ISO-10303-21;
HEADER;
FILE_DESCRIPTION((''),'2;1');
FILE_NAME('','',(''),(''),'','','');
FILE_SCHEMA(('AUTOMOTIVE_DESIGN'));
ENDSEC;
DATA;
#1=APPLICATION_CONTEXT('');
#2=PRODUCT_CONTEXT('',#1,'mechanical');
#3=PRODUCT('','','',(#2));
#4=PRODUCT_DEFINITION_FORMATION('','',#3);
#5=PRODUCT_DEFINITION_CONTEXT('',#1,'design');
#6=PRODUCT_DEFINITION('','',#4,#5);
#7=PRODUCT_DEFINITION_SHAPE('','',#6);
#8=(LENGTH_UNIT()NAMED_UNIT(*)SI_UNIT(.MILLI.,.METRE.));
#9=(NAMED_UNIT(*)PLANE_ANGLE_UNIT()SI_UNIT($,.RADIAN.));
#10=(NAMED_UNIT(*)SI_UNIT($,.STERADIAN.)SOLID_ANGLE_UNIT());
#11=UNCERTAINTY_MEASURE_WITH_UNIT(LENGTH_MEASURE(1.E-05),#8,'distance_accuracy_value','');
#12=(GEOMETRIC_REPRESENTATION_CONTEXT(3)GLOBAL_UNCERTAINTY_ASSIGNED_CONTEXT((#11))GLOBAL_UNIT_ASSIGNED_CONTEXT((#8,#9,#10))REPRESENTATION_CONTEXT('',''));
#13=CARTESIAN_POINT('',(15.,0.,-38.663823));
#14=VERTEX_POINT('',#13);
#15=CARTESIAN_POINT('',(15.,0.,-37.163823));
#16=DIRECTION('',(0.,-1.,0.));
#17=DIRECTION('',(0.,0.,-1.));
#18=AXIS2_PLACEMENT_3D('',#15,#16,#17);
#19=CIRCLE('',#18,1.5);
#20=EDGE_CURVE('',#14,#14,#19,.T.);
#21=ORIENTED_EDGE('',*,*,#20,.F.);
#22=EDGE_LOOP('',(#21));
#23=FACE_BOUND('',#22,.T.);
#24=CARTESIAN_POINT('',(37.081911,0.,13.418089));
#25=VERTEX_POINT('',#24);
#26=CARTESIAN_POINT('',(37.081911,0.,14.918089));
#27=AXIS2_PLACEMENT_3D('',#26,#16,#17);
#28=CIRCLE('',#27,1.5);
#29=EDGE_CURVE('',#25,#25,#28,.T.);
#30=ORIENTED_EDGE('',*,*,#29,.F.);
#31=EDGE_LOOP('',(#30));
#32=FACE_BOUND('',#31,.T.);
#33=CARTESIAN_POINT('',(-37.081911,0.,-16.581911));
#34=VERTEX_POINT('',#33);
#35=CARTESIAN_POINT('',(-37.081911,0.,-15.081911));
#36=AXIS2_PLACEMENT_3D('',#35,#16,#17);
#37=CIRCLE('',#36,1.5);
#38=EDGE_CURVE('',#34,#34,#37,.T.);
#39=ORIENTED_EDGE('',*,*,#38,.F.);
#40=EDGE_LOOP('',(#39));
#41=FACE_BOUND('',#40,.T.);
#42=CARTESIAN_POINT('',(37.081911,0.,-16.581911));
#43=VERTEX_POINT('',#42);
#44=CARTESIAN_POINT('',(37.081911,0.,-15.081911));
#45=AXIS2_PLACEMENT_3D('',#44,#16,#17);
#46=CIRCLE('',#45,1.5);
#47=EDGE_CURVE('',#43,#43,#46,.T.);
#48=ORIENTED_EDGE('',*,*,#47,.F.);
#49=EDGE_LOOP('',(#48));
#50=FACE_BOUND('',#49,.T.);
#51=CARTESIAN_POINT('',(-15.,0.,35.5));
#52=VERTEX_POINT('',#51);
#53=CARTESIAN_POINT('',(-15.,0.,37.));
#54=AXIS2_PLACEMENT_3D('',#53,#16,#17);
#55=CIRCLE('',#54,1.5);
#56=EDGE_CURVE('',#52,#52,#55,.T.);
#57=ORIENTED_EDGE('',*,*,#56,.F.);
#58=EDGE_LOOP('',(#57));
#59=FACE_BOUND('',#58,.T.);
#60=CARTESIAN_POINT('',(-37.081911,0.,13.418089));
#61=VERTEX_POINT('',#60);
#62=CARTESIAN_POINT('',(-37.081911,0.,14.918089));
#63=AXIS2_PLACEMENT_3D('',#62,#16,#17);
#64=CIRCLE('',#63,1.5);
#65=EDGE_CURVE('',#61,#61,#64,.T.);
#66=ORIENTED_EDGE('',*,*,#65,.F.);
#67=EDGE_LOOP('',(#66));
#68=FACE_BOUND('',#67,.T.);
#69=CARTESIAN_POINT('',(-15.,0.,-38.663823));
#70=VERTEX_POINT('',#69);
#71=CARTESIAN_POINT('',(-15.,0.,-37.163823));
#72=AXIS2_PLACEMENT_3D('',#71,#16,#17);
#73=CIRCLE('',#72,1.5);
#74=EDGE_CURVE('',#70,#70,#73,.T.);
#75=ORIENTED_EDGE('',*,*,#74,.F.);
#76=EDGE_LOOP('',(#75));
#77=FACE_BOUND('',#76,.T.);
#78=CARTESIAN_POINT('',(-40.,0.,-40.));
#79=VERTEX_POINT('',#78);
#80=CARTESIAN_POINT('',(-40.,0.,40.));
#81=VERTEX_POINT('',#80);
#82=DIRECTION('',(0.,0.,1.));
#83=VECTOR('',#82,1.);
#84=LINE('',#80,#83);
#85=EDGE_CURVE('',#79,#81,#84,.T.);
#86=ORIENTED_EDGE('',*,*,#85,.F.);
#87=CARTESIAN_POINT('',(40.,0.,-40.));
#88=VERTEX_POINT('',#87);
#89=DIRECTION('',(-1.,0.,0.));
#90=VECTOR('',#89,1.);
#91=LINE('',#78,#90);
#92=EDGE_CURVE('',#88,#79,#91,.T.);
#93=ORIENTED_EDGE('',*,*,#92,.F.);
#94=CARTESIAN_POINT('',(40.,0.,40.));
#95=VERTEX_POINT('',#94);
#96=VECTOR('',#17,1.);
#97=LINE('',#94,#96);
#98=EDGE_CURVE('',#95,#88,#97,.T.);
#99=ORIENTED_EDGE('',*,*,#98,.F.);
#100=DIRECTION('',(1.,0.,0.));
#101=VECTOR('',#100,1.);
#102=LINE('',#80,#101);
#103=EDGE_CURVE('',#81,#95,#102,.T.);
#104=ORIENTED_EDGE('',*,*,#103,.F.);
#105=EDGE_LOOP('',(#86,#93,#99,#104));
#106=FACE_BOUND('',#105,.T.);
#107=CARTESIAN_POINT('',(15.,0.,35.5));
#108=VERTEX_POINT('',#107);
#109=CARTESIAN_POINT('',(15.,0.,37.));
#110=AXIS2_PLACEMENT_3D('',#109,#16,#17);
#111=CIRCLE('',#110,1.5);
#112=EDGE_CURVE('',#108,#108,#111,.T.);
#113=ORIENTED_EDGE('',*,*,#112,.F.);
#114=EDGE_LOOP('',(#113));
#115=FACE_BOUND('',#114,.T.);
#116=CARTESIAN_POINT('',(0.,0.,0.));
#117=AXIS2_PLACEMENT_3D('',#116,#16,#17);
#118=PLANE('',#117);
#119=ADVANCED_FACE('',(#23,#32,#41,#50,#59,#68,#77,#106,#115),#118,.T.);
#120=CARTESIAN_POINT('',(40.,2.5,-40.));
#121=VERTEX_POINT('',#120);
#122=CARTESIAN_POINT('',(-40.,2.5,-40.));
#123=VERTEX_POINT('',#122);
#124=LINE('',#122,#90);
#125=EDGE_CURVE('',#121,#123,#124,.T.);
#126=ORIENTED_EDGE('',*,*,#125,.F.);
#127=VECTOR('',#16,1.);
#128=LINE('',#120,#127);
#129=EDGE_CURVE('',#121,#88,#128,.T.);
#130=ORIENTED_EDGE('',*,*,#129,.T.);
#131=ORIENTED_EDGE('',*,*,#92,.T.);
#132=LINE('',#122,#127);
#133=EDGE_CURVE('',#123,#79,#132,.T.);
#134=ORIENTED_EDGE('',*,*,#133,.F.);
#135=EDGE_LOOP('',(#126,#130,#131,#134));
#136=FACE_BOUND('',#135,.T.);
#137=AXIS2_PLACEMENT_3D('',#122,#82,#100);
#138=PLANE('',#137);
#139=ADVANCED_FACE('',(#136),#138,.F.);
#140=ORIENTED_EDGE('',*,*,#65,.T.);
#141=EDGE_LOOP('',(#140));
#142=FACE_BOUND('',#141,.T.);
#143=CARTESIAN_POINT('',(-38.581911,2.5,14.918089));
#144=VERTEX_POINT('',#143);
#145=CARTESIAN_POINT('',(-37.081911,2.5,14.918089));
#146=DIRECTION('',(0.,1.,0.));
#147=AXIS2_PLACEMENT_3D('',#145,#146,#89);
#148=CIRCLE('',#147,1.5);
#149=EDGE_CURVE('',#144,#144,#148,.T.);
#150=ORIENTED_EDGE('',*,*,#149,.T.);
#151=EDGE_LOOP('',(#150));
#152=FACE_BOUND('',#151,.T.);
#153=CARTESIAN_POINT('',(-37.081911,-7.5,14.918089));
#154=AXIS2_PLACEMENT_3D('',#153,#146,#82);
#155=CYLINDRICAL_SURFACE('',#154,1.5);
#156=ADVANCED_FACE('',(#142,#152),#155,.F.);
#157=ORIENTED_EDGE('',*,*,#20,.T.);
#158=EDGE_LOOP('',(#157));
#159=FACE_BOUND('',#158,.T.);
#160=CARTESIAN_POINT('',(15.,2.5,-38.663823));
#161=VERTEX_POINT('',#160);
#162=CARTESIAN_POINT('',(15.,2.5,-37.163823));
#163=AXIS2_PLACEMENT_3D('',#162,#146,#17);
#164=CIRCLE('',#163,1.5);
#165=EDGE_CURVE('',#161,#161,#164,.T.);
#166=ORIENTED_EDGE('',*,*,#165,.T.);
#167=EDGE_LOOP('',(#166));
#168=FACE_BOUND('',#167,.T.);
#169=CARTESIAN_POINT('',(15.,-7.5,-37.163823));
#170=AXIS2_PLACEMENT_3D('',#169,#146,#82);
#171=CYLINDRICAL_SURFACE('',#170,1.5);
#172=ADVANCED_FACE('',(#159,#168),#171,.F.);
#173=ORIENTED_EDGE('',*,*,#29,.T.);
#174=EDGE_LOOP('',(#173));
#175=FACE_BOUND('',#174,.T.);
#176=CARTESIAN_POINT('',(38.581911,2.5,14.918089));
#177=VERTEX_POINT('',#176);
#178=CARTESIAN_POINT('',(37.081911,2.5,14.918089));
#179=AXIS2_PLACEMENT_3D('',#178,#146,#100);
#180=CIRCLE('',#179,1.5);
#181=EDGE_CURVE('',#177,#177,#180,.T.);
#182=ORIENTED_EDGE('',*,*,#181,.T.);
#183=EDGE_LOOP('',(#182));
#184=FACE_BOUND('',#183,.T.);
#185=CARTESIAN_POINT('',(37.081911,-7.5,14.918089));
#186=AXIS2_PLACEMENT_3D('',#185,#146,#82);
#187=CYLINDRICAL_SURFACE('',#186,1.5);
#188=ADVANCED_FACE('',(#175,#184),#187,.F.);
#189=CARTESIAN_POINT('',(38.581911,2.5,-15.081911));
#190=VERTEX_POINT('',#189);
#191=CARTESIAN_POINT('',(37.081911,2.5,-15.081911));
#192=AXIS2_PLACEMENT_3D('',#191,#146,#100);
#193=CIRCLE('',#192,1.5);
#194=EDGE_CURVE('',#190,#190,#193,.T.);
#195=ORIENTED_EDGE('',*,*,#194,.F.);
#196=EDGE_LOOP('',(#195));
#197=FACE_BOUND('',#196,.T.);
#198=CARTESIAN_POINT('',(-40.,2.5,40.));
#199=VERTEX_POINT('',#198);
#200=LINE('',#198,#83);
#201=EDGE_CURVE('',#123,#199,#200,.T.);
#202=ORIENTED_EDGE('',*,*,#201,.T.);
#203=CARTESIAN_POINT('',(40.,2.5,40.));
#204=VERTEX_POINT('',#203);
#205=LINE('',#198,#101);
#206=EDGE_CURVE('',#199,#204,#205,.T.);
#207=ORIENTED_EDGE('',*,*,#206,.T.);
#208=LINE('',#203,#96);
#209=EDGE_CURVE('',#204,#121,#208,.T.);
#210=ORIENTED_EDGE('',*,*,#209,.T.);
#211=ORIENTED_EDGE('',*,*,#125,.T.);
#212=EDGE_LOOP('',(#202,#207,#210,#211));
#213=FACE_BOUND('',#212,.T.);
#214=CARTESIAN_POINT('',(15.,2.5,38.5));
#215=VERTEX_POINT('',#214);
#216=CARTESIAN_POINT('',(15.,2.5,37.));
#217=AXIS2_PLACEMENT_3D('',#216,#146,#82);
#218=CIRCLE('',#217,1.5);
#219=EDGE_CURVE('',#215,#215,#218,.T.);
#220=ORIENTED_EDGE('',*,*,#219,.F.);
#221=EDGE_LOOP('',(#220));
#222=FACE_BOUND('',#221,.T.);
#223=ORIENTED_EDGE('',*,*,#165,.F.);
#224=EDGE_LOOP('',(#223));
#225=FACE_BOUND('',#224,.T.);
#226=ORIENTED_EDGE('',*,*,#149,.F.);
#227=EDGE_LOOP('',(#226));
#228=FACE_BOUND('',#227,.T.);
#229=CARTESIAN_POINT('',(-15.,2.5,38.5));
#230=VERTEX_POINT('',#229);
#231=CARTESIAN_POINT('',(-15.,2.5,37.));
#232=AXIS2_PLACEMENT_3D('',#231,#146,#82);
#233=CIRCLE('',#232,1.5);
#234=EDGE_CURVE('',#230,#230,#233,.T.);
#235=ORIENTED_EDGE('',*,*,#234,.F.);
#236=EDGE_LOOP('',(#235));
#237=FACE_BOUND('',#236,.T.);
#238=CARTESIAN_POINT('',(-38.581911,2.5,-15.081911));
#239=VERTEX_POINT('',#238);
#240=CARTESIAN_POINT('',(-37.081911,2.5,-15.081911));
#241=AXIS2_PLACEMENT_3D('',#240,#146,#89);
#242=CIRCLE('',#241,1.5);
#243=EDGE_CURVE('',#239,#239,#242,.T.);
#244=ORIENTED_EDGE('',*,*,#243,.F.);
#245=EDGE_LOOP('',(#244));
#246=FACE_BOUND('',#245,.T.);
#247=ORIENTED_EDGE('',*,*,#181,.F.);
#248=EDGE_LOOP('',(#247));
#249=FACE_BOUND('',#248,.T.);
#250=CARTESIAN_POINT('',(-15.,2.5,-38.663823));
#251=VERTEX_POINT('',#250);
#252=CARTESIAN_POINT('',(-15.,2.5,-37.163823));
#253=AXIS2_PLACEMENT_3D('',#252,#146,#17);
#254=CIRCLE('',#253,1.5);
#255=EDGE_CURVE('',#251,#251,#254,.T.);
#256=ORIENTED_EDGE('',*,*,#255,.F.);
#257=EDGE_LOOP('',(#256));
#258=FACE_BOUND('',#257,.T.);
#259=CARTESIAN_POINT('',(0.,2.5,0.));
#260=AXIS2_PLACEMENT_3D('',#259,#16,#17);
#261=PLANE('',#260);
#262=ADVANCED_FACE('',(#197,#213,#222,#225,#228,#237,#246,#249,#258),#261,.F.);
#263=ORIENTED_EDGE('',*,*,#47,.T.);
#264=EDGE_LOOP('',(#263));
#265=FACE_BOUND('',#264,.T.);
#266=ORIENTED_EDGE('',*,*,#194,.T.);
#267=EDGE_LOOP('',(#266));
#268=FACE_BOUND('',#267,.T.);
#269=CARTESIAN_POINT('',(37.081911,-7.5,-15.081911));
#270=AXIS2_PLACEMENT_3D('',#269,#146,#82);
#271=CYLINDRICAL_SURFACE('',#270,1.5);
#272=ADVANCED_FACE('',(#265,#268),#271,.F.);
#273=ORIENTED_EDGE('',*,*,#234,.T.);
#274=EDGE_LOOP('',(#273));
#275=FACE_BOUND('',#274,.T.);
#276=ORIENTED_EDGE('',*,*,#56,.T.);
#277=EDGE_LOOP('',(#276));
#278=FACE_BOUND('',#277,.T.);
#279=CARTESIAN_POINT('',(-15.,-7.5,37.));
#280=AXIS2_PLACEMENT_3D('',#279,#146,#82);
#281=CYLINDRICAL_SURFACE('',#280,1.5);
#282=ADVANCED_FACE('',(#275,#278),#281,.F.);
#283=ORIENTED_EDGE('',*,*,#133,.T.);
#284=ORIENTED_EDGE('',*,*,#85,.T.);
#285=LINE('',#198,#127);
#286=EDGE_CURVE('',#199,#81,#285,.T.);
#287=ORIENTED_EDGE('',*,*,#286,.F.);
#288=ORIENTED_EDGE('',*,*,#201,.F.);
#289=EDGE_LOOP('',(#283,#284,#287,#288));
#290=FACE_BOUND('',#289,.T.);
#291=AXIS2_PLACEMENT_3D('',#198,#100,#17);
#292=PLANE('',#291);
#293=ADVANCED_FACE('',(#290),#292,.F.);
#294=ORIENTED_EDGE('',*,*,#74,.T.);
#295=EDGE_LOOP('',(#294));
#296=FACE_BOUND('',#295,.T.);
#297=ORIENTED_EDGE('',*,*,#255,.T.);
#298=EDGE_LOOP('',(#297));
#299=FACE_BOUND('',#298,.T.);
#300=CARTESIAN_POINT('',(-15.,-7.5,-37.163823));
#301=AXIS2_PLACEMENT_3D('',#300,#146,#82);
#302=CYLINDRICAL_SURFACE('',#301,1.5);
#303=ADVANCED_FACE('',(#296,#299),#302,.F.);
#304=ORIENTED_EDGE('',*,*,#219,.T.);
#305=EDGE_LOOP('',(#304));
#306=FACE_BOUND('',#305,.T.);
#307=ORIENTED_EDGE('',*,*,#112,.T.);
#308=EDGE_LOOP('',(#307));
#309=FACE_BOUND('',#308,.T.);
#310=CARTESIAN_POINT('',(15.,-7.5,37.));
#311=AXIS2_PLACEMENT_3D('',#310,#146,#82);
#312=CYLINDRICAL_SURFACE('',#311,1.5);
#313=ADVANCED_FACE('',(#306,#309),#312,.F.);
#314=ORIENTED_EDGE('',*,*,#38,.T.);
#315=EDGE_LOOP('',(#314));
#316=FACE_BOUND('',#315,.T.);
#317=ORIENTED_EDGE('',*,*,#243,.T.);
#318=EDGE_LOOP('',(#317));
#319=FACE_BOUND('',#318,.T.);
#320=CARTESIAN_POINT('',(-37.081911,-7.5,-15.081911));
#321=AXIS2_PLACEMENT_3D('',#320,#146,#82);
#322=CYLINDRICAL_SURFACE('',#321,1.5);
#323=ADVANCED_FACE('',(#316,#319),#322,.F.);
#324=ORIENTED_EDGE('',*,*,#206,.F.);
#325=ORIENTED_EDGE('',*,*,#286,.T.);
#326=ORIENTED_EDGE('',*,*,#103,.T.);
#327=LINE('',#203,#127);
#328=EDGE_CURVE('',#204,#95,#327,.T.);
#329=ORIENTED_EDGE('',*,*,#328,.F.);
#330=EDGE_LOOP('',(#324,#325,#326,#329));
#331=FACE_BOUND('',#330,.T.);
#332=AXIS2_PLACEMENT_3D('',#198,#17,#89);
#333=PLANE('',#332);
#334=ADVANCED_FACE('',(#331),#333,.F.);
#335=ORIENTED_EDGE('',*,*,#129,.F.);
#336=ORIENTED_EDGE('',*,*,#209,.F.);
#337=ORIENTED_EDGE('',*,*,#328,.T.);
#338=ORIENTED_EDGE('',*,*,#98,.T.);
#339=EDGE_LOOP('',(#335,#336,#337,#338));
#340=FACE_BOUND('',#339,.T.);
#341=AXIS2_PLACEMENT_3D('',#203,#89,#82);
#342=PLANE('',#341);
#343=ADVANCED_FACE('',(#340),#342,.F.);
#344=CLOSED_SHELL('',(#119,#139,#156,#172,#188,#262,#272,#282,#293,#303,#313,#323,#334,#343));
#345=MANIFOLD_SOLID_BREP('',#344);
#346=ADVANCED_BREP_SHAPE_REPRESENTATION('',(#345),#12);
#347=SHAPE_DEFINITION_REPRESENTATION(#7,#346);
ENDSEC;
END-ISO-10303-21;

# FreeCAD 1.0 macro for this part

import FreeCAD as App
import Part
import Sketcher
from FreeCAD import Vector

doc = App.newDocument("Part")
body = doc.addObject("PartDesign::Body", "Body")

# Sketch on XZ plane
sketch1 = body.newObject("Sketcher::SketchObject", "Sketch")
sketch1.AttachmentSupport = (doc.getObject("XZ_Plane"), [""])
sketch1.MapMode = "FlatFace"
sketch1.addGeometry(Part.LineSegment(Vector(-40, -40, 0), Vector(-40, 40, 0)), False)
sketch1.addGeometry(Part.LineSegment(Vector(-40, 40, 0), Vector(40, 40, 0)), False)
sketch1.addGeometry(Part.LineSegment(Vector(40, 40, 0), Vector(40, -40, 0)), False)
sketch1.addGeometry(Part.LineSegment(Vector(40, -40, 0), Vector(-40, -40, 0)), False)
sketch1.addConstraint(Sketcher.Constraint("Coincident", 0, 2, 1, 1))
sketch1.addConstraint(Sketcher.Constraint("Coincident", 1, 2, 2, 1))
sketch1.addConstraint(Sketcher.Constraint("Coincident", 2, 2, 3, 1))
sketch1.addConstraint(Sketcher.Constraint("Coincident", 3, 2, 0, 1))
sketch1.addConstraint(Sketcher.Constraint("Vertical", 0))
sketch1.addConstraint(Sketcher.Constraint("Horizontal", 1))
sketch1.addConstraint(Sketcher.Constraint("Vertical", 2))
sketch1.addConstraint(Sketcher.Constraint("Horizontal", 3))
sketch1.addConstraint(Sketcher.Constraint("Symmetric", 0, 2, 2, 2, -1, 1))
sketch1.addConstraint(Sketcher.Constraint("Equal", 3, 0))
sketch1.addConstraint(Sketcher.Constraint("DistanceX", 1, 1, 1, 2, 80.0))
pad1 = body.newObject("PartDesign::Pad", "Pad")
pad1.Profile = sketch1
pad1.Length = 2.5
pad1.Reversed = True

# Sketch on XZ plane
sketch2 = body.newObject("Sketcher::SketchObject", "Sketch001")
sketch2.AttachmentSupport = (doc.getObject("XZ_Plane"), [""])
sketch2.MapMode = "FlatFace"
sketch2.AttachmentOffset = App.Placement(Vector(0, 0, -2.5), App.Rotation())
sketch2.addGeometry(Part.Circle(Vector(-15, 37, 0), Vector(0, 0, 1), 1.5), False)
sketch2.addGeometry(Part.Circle(Vector(15, 37, 0), Vector(0, 0, 1), 1.5), False)
sketch2.addConstraint(Sketcher.Constraint("Equal", 0, 1))
sketch2.addConstraint(Sketcher.Constraint("Symmetric", 0, 3, 1, 3, -2))
sketch2.addConstraint(Sketcher.Constraint("Diameter", 0, 3.0))
sketch2.addConstraint(Sketcher.Constraint("DistanceX", 0, 3, -1, 1, 15.0))
sketch2.addConstraint(Sketcher.Constraint("DistanceY", -1, 1, 0, 3, 37.0))
pocket1 = body.newObject("PartDesign::Pocket", "Pocket")
pocket1.Profile = sketch2
pocket1.Length = 10
pocket1.Reversed = True
doc.recompute()

datumline = body.newObject("PartDesign::Line", "DatumLine")
datumline.Placement = App.Placement(Vector(0, 0, -0.081911), App.Rotation(Vector(0, 0, 1), Vector(0, 1, 0)))
polarpattern = body.newObject("PartDesign::PolarPattern", "PolarPattern")
polarpattern.Originals = [pocket1]
polarpattern.Axis = (datumline, [""])
polarpattern.Angle = 360
polarpattern.Occurrences = 4
body.Tip = polarpattern

doc.recompute()
